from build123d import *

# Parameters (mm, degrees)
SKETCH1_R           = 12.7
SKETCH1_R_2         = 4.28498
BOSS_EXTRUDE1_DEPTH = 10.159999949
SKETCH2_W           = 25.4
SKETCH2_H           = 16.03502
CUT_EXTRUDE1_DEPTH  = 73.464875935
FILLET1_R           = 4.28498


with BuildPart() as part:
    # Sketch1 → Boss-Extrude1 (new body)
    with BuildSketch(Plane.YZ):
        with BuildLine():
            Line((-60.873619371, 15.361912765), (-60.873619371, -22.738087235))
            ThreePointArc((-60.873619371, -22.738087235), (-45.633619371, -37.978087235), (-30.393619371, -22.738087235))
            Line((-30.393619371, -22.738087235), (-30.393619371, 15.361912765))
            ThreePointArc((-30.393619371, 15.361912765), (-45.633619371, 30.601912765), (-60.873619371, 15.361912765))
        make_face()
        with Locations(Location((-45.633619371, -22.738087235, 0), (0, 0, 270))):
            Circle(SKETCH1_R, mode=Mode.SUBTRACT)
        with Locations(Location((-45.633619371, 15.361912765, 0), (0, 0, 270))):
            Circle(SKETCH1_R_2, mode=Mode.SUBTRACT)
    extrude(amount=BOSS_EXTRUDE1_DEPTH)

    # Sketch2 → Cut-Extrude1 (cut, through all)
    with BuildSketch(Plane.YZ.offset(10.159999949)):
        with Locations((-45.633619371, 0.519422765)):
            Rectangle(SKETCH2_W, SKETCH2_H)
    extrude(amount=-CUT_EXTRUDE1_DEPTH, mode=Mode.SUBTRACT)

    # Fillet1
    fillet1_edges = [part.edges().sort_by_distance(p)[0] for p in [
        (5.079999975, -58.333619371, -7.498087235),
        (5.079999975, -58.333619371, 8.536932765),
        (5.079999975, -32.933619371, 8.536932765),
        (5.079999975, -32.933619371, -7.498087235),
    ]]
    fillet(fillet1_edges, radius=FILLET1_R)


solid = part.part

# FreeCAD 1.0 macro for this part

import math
import FreeCAD as App
import Part
import Sketcher
Q = App.Units.Quantity


def edges_at(feature, points):
    """Names of the edges that pass closest to the given points."""
    edges = feature.Shape.Edges
    near = lambda p: min(range(len(edges)), key=lambda i: edges[i].distToShape(Part.Vertex(*p))[0])
    return sorted({f"Edge{near(p) + 1}" for p in points})


def add_polygon(sketch, points):
    """Adds a closed chain of lines whose ends are joined by coincident constraints."""
    first, n = sketch.GeometryCount, len(points)
    for a, b in zip(points, points[1:] + points[:1]):
        sketch.addGeometry(Part.LineSegment(App.Vector(*a, 0), App.Vector(*b, 0)), False)
    for i in range(n):
        sketch.addConstraint(Sketcher.Constraint("Coincident", first + i, 2, first + (i + 1) % n, 1))

doc = App.newDocument("Part")
body = doc.addObject("PartDesign::Body", "Body")

# Sketch on YZ plane
sketch1 = body.newObject("Sketcher::SketchObject", "Sketch")
sketch1.AttachmentSupport = (doc.getObject("YZ_Plane"), [""])
sketch1.MapMode = "FlatFace"
sketch1.addGeometry([
    Part.LineSegment(App.Vector(-60.9, 15.4, 0), App.Vector(-60.9, -22.7, 0)),  # 0
    Part.ArcOfCircle(Part.Circle(App.Vector(-45.6, -22.7, 0), App.Vector(0, 0, 1), 15.2), math.radians(180), math.radians(360)),  # 1
    Part.LineSegment(App.Vector(-30.4, -22.7, 0), App.Vector(-30.4, 15.4, 0)),  # 2
    Part.ArcOfCircle(Part.Circle(App.Vector(-45.6, 15.4, 0), App.Vector(0, 0, 1), 15.2), math.radians(0), math.radians(180)),  # 3
    Part.Circle(App.Vector(-45.6, -22.7, 0), App.Vector(0, 0, 1), 12.7),  # 4
    Part.Circle(App.Vector(-45.6, 15.4, 0), App.Vector(0, 0, 1), 4.3),  # 5
], False)
sketch1.addConstraint([
    Sketcher.Constraint("Tangent", 0, 2, 1, 1),
    Sketcher.Constraint("Tangent", 1, 2, 2, 1),
    Sketcher.Constraint("Tangent", 2, 2, 3, 1),
    Sketcher.Constraint("Tangent", 3, 2, 0, 1),
    Sketcher.Constraint("Vertical", 0),
    Sketcher.Constraint("Vertical", 2),
    Sketcher.Constraint("Coincident", 4, 3, 1, 3),
    Sketcher.Constraint("Coincident", 5, 3, 3, 3),
    Sketcher.Constraint("Diameter", 4, Q("1 in")),
    Sketcher.Constraint("Radius", 1, Q("0.6 in")),
    Sketcher.Constraint("DistanceY", 0, 2, 0, 1, Q("1.5 in")),
    Sketcher.Constraint("Diameter", 5, Q("0.3374 in")),
    Sketcher.Constraint("DistanceX", 1, 3, -1, 1, Q("45.633619 mm")),
    Sketcher.Constraint("DistanceY", 1, 3, -1, 1, Q("22.738087 mm")),
])
pad1 = body.newObject("PartDesign::Pad", "Pad")
pad1.Profile = sketch1
pad1.Length = Q("0.4 in")

# Sketch on YZ plane
sketch2 = body.newObject("Sketcher::SketchObject", "Sketch001")
sketch2.AttachmentSupport = (doc.getObject("YZ_Plane"), [""])
sketch2.MapMode = "FlatFace"
sketch2.AttachmentOffset = App.Placement(App.Vector(0, 0, 0.4 * 25.4), App.Rotation())
add_polygon(sketch2, [(-58, 9), (-58, -7), (-33, -7), (-33, 9)])  # lines 0-3
sketch2.addConstraint([
    Sketcher.Constraint("Vertical", 0),
    Sketcher.Constraint("Horizontal", 1),
    Sketcher.Constraint("Vertical", 2),
    Sketcher.Constraint("Horizontal", 3),
    Sketcher.Constraint("DistanceX", 1, 1, 1, 2, Q("1 in")),
    Sketcher.Constraint("DistanceY", 0, 2, 0, 1, Q("0.6313 in")),
    Sketcher.Constraint("DistanceX", 0, 2, -1, 1, Q("58.333619 mm")),
    Sketcher.Constraint("DistanceY", 0, 2, -1, 1, Q("7.498087 mm")),
])
pocket1 = body.newObject("PartDesign::Pocket", "Pocket")
pocket1.Profile = sketch2
pocket1.Type = "ThroughAll"
doc.recompute()

fillet = body.newObject("PartDesign::Fillet", "Fillet")
fillet.Base = (pocket1, edges_at(pocket1, [
    (5.08, -58.334, -7.498),
    (5.08, -58.334, 8.537),
    (5.08, -32.934, 8.537),
    (5.08, -32.934, -7.498),
]))
fillet.Radius = Q("0.1687 in")

doc.recompute()
